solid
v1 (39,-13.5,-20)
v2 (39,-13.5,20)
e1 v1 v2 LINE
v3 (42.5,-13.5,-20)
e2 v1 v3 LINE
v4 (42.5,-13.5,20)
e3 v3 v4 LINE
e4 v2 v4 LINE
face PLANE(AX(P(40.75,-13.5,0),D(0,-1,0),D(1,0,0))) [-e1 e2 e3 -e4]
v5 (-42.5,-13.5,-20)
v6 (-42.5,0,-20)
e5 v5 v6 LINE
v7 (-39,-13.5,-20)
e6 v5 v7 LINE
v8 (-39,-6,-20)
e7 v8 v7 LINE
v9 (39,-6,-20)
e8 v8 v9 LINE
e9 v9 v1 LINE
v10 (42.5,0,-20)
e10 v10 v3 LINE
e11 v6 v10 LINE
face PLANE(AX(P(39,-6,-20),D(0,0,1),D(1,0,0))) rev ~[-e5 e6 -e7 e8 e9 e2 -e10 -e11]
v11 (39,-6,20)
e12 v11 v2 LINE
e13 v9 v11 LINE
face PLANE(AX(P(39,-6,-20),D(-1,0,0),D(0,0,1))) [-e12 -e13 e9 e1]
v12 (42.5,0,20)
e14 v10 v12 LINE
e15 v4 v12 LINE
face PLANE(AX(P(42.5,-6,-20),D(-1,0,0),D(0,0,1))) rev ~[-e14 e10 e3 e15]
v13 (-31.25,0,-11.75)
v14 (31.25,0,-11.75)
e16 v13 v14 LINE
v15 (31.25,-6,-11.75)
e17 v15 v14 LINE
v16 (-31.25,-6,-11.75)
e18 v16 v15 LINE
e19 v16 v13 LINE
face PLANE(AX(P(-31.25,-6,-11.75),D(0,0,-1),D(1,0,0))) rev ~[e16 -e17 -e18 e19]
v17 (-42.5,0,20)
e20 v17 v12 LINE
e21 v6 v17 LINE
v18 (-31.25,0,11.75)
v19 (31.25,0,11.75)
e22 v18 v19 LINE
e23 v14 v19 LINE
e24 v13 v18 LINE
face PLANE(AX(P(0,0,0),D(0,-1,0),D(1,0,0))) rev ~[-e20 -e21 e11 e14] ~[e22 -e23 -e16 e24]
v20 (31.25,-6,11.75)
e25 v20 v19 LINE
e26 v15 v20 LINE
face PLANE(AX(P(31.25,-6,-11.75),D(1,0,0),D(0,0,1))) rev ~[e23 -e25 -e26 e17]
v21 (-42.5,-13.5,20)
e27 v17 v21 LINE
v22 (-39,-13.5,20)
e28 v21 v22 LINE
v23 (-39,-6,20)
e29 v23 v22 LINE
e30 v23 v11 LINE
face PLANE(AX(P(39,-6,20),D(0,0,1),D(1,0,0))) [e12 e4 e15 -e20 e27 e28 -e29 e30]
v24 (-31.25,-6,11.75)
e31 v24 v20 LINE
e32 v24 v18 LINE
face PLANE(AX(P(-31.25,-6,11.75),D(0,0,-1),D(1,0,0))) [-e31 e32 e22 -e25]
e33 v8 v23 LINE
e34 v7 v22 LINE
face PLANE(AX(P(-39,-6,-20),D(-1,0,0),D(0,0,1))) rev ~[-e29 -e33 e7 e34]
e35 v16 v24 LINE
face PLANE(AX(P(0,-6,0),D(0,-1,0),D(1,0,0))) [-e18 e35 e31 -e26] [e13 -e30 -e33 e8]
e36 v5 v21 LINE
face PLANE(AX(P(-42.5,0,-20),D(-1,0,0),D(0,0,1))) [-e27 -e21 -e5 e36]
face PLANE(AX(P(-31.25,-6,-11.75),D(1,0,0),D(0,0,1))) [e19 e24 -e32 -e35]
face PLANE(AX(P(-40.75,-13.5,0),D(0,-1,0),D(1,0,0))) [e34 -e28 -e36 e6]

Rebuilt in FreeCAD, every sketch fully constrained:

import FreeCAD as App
import Part
import Sketcher
from FreeCAD import Vector


def add_polygon(sketch, points):
    """Adds a closed chain of lines whose ends are joined by coincident constraints."""
    first, n = sketch.GeometryCount, len(points)
    for a, b in zip(points, points[1:] + points[:1]):
        sketch.addGeometry(Part.LineSegment(App.Vector(*a, 0), App.Vector(*b, 0)), False)
    for i in range(n):
        sketch.addConstraint(Sketcher.Constraint("Coincident", first + i, 2, first + (i + 1) % n, 1))

doc = App.newDocument("Part")
body = doc.addObject("PartDesign::Body", "Body")

# Sketch on XZ plane
sketch1 = body.newObject("Sketcher::SketchObject", "Sketch")
sketch1.AttachmentSupport = (doc.getObject("XZ_Plane"), [""])
sketch1.MapMode = "FlatFace"
add_polygon(sketch1, [(-42, 20), (-42, -20), (42, -20), (42, 20)])  # lines 0-3
sketch1.addConstraint(Sketcher.Constraint("Vertical", 0))
sketch1.addConstraint(Sketcher.Constraint("Horizontal", 1))
sketch1.addConstraint(Sketcher.Constraint("Vertical", 2))
sketch1.addConstraint(Sketcher.Constraint("Horizontal", 3))
sketch1.addConstraint(Sketcher.Constraint("Symmetric", 0, 2, 2, 2, -1, 1))
sketch1.addConstraint(Sketcher.Constraint("DistanceX", 1, 1, 1, 2, 85.0))
sketch1.addConstraint(Sketcher.Constraint("DistanceY", 0, 2, 0, 1, 40.0))
pad1 = body.newObject("PartDesign::Pad", "Pad")
pad1.Profile = sketch1
pad1.Length = 6

# Sketch on XZ plane
sketch2 = body.newObject("Sketcher::SketchObject", "Sketch001")
sketch2.AttachmentSupport = (doc.getObject("XZ_Plane"), [""])
sketch2.MapMode = "FlatFace"
sketch2.AttachmentOffset = App.Placement(Vector(0, 0, 6), App.Rotation())
add_polygon(sketch2, [(-31, 12), (-31, -12), (31, -12), (31, 12)])  # lines 0-3
sketch2.addConstraint(Sketcher.Constraint("Vertical", 0))
sketch2.addConstraint(Sketcher.Constraint("Horizontal", 1))
sketch2.addConstraint(Sketcher.Constraint("Vertical", 2))
sketch2.addConstraint(Sketcher.Constraint("Horizontal", 3))
sketch2.addConstraint(Sketcher.Constraint("Symmetric", 0, 2, 2, 2, -1, 1))
sketch2.addConstraint(Sketcher.Constraint("DistanceX", 1, 1, 1, 2, 62.5))
sketch2.addConstraint(Sketcher.Constraint("DistanceY", 0, 2, 0, 1, 23.5))
pocket1 = body.newObject("PartDesign::Pocket", "Pocket")
pocket1.Profile = sketch2
pocket1.Length = 25

# Sketch on XZ plane
sketch3 = body.newObject("Sketcher::SketchObject", "Sketch002")
sketch3.AttachmentSupport = (doc.getObject("XZ_Plane"), [""])
sketch3.MapMode = "FlatFace"
sketch3.AttachmentOffset = App.Placement(Vector(0, 0, 6), App.Rotation())
add_polygon(sketch3, [(39, 20), (39, -20), (42.5, -20), (42.5, 20)])  # lines 0-3
add_polygon(sketch3, [(-42.5, 20), (-42.5, -20), (-39, -20), (-39, 20)])  # lines 4-7
sketch3.addConstraint(Sketcher.Constraint("Vertical", 0))
sketch3.addConstraint(Sketcher.Constraint("Horizontal", 1))
sketch3.addConstraint(Sketcher.Constraint("Vertical", 2))
sketch3.addConstraint(Sketcher.Constraint("Horizontal", 3))
sketch3.addConstraint(Sketcher.Constraint("Vertical", 4))
sketch3.addConstraint(Sketcher.Constraint("Horizontal", 5))
sketch3.addConstraint(Sketcher.Constraint("Vertical", 6))
sketch3.addConstraint(Sketcher.Constraint("Horizontal", 7))
sketch3.addConstraint(Sketcher.Constraint("Symmetric", 2, 2, 4, 2, -1, 1))
sketch3.addConstraint(Sketcher.Constraint("Symmetric", 0, 2, 6, 2, -1, 1))
sketch3.addConstraint(Sketcher.Constraint("Horizontal", 1, 2, 4, 2))
sketch3.addConstraint(Sketcher.Constraint("DistanceY", 0, 2, 0, 1, 40.0))
sketch3.addConstraint(Sketcher.Constraint("DistanceX", 1, 1, 1, 2, 3.5))
sketch3.addConstraint(Sketcher.Constraint("DistanceX", -1, 1, 0, 2, 39.0))
pad2 = body.newObject("PartDesign::Pad", "Pad001")
pad2.Profile = sketch3
pad2.Length = 7.5

doc.recompute()
